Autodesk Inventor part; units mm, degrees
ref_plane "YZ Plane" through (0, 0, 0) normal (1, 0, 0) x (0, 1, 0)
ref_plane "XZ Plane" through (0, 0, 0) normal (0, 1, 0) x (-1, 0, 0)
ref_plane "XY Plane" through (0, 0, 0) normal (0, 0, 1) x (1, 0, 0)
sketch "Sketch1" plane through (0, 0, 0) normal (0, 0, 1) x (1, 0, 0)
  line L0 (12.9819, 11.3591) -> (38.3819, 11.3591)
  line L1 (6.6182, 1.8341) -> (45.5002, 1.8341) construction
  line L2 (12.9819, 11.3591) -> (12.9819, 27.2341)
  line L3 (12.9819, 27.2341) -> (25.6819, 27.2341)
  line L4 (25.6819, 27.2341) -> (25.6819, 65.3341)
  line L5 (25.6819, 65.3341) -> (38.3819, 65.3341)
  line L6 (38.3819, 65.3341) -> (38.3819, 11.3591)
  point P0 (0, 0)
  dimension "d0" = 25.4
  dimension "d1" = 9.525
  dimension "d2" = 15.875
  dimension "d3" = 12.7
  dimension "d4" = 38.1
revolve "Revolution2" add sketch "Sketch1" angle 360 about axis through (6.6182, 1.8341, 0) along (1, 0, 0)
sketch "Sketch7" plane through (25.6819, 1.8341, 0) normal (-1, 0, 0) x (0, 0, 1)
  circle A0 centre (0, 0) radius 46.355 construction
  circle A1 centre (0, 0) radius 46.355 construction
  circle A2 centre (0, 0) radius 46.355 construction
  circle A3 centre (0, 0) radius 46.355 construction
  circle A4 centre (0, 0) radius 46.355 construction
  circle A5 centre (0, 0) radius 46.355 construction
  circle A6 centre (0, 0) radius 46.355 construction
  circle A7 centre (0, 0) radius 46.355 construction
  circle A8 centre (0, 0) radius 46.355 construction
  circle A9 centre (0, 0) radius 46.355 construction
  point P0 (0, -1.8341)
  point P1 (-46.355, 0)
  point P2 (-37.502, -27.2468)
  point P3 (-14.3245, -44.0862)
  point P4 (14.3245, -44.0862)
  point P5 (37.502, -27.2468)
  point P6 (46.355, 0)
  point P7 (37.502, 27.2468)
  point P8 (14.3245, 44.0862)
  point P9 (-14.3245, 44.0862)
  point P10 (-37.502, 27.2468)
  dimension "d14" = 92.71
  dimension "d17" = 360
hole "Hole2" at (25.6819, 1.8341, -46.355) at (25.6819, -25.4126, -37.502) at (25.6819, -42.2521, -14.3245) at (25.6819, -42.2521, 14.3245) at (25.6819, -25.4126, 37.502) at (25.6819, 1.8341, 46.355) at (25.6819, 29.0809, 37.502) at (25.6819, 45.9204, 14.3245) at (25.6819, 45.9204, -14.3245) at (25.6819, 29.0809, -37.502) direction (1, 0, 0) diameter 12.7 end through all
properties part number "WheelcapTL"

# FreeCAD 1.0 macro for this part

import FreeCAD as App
import Part
import Sketcher
Q = App.Units.Quantity


def add_polygon(sketch, points):
    """Adds a closed chain of lines whose ends are joined by coincident constraints."""
    first, n = sketch.GeometryCount, len(points)
    for a, b in zip(points, points[1:] + points[:1]):
        sketch.addGeometry(Part.LineSegment(App.Vector(*a, 0), App.Vector(*b, 0)), False)
    for i in range(n):
        sketch.addConstraint(Sketcher.Constraint("Coincident", first + i, 2, first + (i + 1) % n, 1))

doc = App.newDocument("Part")
body = doc.addObject("PartDesign::Body", "Body")

# Sketch on XY plane
sketch1 = body.newObject("Sketcher::SketchObject", "Sketch")
sketch1.AttachmentSupport = (doc.getObject("XY_Plane"), [""])
sketch1.MapMode = "FlatFace"
add_polygon(sketch1, [(13, 27), (13, 11), (38, 11), (38, 65), (26, 65), (26, 27)])  # lines 0-5
sketch1.addGeometry(Part.LineSegment(App.Vector(13, 2, 0), App.Vector(38, 2, 0)), True)  # axis
sketch1.addConstraint([
    Sketcher.Constraint("Vertical", 0),
    Sketcher.Constraint("Horizontal", 1),
    Sketcher.Constraint("Vertical", 2),
    Sketcher.Constraint("Horizontal", 3),
    Sketcher.Constraint("Vertical", 4),
    Sketcher.Constraint("Horizontal", 5),
    Sketcher.Constraint("Horizontal", 6),
    Sketcher.Constraint("Vertical", 5, 2, 6, 1),
    Sketcher.Constraint("Vertical", 2, 2, 6, 2),
    Sketcher.Constraint("Equal", 3, 5),
    Sketcher.Constraint("DistanceX", 1, 1, 1, 2, Q("1 in")),
    Sketcher.Constraint("DistanceY", 4, 2, 4, 1, Q("1.5 in")),
    Sketcher.Constraint("DistanceY", 6, 1, 5, 2, Q("1 in")),
    Sketcher.Constraint("DistanceY", 0, 2, 0, 1, Q("0.625 in")),
    Sketcher.Constraint("DistanceX", -1, 1, 0, 2, Q("0.5111 in")),
    Sketcher.Constraint("DistanceY", -1, 1, 0, 2, Q("0.4472 in")),
])
revolution = body.newObject("PartDesign::Revolution", "Revolution")
revolution.Profile = sketch1
revolution.ReferenceAxis = (sketch1, ["Axis0"])
revolution.Angle = 360

# Sketch on YZ plane
sketch2 = body.newObject("Sketcher::SketchObject", "Sketch001")
sketch2.AttachmentSupport = (doc.getObject("YZ_Plane"), [""])
sketch2.MapMode = "FlatFace"
sketch2.AttachmentOffset = App.Placement(App.Vector(0, 0, 1.0110984 * 25.4), App.Rotation())
sketch2.addGeometry([
    Part.Circle(App.Vector(2, -46, 0), App.Vector(0, 0, 1), 6),  # 0
    Part.Circle(App.Vector(-25, -38, 0), App.Vector(0, 0, 1), 6),  # 1
    Part.Circle(App.Vector(-42, -14, 0), App.Vector(0, 0, 1), 6),  # 2
    Part.Circle(App.Vector(-42, 14, 0), App.Vector(0, 0, 1), 6),  # 3
    Part.Circle(App.Vector(-25, 38, 0), App.Vector(0, 0, 1), 6),  # 4
    Part.Circle(App.Vector(2, 46, 0), App.Vector(0, 0, 1), 6),  # 5
    Part.Circle(App.Vector(29, 38, 0), App.Vector(0, 0, 1), 6),  # 6
    Part.Circle(App.Vector(46, 14, 0), App.Vector(0, 0, 1), 6),  # 7
    Part.Circle(App.Vector(46, -14, 0), App.Vector(0, 0, 1), 6),  # 8
    Part.Circle(App.Vector(29, -38, 0), App.Vector(0, 0, 1), 6),  # 9
], False)
sketch2.addConstraint([
    Sketcher.Constraint("Equal", 0, 1),
    Sketcher.Constraint("Equal", 1, 2),
    Sketcher.Constraint("Equal", 2, 3),
    Sketcher.Constraint("Equal", 3, 4),
    Sketcher.Constraint("Equal", 4, 5),
    Sketcher.Constraint("Equal", 5, 6),
    Sketcher.Constraint("Equal", 6, 7),
    Sketcher.Constraint("Equal", 7, 8),
    Sketcher.Constraint("Equal", 8, 9),
    Sketcher.Constraint("Symmetric", 2, 3, 3, 3, -1),
    Sketcher.Constraint("Symmetric", 1, 3, 4, 3, -1),
    Sketcher.Constraint("Symmetric", 0, 3, 5, 3, -1),
    Sketcher.Constraint("Symmetric", 7, 3, 8, 3, -1),
    Sketcher.Constraint("Symmetric", 6, 3, 9, 3, -1),
    Sketcher.Constraint("Horizontal", 4, 3, 6, 3),
    Sketcher.Constraint("Horizontal", 3, 3, 7, 3),
    Sketcher.Constraint("Diameter", 0, Q("0.5 in")),
    Sketcher.Constraint("DistanceY", 0, 3, 5, 3, Q("3.65 in")),
    Sketcher.Constraint("DistanceX", -1, 1, 0, 3, Q("0.0722 in")),
    Sketcher.Constraint("DistanceX", 1, 3, -1, 1, Q("1.0005 in")),
    Sketcher.Constraint("DistanceX", -1, 1, 7, 3, Q("1.8079 in")),
    Sketcher.Constraint("DistanceY", 1, 3, 2, 3, Q("0.9125 in")),
    Sketcher.Constraint("DistanceX", 5, 3, 6, 3, Q("1.0727 in")),
    Sketcher.Constraint("DistanceY", 1, 3, -1, 1, 37.502),
    Sketcher.Constraint("DistanceX", 2, 3, -1, 1, 42.252),
])
doc.recompute()
hole = body.newObject("PartDesign::Hole", "Hole")
hole.Profile = sketch2
hole.ThreadType = "None"
hole.Diameter = Q("0.5 in")
hole.DepthType = "ThroughAll"
hole.Reversed = True

doc.recompute()
